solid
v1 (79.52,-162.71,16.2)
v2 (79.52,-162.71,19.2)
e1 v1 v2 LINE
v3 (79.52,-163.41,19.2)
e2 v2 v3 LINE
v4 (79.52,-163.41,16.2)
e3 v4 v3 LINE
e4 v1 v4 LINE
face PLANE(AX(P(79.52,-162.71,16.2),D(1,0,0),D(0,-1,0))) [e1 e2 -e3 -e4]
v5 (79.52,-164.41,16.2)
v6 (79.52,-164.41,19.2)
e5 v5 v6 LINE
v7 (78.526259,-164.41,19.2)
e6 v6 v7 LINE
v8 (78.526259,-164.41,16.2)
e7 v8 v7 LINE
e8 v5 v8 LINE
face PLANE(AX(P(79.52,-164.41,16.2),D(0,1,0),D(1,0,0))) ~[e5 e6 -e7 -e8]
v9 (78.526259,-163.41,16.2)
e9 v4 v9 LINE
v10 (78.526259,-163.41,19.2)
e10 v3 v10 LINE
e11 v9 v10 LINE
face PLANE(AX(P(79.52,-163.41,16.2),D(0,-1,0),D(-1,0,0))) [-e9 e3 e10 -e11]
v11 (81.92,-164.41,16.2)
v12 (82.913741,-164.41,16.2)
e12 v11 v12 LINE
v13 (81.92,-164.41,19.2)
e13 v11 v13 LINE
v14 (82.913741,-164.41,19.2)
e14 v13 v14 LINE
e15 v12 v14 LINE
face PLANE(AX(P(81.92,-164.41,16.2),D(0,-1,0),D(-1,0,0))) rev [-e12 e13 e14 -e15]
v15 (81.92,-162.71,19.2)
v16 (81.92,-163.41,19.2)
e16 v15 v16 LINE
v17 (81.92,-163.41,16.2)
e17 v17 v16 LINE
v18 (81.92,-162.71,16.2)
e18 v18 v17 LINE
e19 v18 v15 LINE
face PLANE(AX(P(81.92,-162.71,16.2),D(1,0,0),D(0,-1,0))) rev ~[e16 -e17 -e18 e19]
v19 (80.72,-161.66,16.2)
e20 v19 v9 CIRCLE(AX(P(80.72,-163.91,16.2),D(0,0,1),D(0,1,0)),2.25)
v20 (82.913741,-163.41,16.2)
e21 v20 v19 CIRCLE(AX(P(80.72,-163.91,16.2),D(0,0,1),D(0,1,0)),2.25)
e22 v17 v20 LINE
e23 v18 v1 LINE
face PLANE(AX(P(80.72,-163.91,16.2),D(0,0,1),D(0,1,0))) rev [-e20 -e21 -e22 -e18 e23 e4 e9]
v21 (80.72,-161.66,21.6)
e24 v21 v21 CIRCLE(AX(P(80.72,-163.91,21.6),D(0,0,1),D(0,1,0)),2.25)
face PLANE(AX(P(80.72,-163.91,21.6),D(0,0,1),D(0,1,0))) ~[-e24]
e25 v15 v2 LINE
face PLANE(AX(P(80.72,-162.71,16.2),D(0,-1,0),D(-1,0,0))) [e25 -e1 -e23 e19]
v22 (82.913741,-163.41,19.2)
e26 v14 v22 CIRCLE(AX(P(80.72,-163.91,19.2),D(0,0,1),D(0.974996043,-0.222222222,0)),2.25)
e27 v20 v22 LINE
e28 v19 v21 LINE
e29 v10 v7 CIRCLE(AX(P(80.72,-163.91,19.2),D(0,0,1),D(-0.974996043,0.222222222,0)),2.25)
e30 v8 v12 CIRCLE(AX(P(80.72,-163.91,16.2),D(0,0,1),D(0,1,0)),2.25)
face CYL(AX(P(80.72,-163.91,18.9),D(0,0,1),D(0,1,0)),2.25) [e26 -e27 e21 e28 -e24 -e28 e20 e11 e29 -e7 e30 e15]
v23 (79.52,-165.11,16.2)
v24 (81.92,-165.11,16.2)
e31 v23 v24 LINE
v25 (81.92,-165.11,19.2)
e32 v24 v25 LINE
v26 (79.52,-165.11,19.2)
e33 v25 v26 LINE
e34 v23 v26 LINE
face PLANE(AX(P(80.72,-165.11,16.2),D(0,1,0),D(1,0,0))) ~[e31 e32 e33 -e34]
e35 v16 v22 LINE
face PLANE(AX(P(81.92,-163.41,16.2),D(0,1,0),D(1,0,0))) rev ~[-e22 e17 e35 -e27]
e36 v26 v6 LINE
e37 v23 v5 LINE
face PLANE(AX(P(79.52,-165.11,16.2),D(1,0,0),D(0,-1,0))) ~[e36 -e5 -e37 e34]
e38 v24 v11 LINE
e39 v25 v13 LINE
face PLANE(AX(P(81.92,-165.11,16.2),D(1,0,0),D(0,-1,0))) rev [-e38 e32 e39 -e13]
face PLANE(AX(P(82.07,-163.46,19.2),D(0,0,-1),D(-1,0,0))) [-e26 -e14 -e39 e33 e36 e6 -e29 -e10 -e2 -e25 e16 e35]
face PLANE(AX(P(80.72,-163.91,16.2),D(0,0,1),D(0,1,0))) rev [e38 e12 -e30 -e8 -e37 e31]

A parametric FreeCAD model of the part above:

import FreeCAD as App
import Part
import Sketcher
from FreeCAD import Vector


def add_polygon(sketch, points):
    """Adds a closed chain of lines whose ends are joined by coincident constraints."""
    first, n = sketch.GeometryCount, len(points)
    for a, b in zip(points, points[1:] + points[:1]):
        sketch.addGeometry(Part.LineSegment(App.Vector(*a, 0), App.Vector(*b, 0)), False)
    for i in range(n):
        sketch.addConstraint(Sketcher.Constraint("Coincident", first + i, 2, first + (i + 1) % n, 1))

doc = App.newDocument("Part")
body = doc.addObject("PartDesign::Body", "Body")

# Sketch on YZ plane
sketch1 = body.newObject("Sketcher::SketchObject", "Sketch")
sketch1.AttachmentSupport = (doc.getObject("YZ_Plane"), [""])
sketch1.MapMode = "FlatFace"
add_polygon(sketch1, [(0, 5.4), (0, 0), (2.2, 0), (2.2, 5.4)])  # lines 0-3
sketch1.addConstraint(Sketcher.Constraint("Vertical", 0))
sketch1.addConstraint(Sketcher.Constraint("Horizontal", 1))
sketch1.addConstraint(Sketcher.Constraint("Vertical", 2))
sketch1.addConstraint(Sketcher.Constraint("Horizontal", 3))
sketch1.addConstraint(Sketcher.Constraint("Coincident", 0, 2, -1, 1))
sketch1.addConstraint(Sketcher.Constraint("DistanceY", 0, 2, 0, 1, 5.4))
sketch1.addConstraint(Sketcher.Constraint("DistanceX", 1, 1, 1, 2, 2.25))
revolution = body.newObject("PartDesign::Revolution", "Revolution")
revolution.Profile = sketch1
revolution.ReferenceAxis = (sketch1, ["V_Axis"])
revolution.Angle = 360

# Sketch on XY plane
sketch2 = body.newObject("Sketcher::SketchObject", "Sketch001")
sketch2.AttachmentSupport = (doc.getObject("XY_Plane"), [""])
sketch2.MapMode = "FlatFace"
add_polygon(sketch2, [(-3, 0), (0, 0), (0, 1.2), (-1.2, 1.2), (-1.2, 0.5), (-3, 0.5)])  # lines 0-5
sketch2.addConstraint(Sketcher.Constraint("Horizontal", 0))
sketch2.addConstraint(Sketcher.Constraint("Vertical", 1))
sketch2.addConstraint(Sketcher.Constraint("Horizontal", 2))
sketch2.addConstraint(Sketcher.Constraint("Vertical", 3))
sketch2.addConstraint(Sketcher.Constraint("Horizontal", 4))
sketch2.addConstraint(Sketcher.Constraint("Vertical", 5))
sketch2.addConstraint(Sketcher.Constraint("Coincident", 0, 2, -1, 1))
sketch2.addConstraint(Sketcher.Constraint("Equal", 2, 1))
sketch2.addConstraint(Sketcher.Constraint("DistanceX", 0, 1, 0, 2, 3.0))
sketch2.addConstraint(Sketcher.Constraint("DistanceX", 2, 2, 2, 1, 1.2))
sketch2.addConstraint(Sketcher.Constraint("DistanceY", 3, 2, 3, 1, 0.7))
pocket1 = body.newObject("PartDesign::Pocket", "Pocket")
pocket1.Profile = sketch2
pocket1.Length = 3
pocket1.Reversed = True

# Sketch on XY plane
sketch3 = body.newObject("Sketcher::SketchObject", "Sketch002")
sketch3.AttachmentSupport = (doc.getObject("XY_Plane"), [""])
sketch3.MapMode = "FlatFace"
add_polygon(sketch3, [(3, 0), (0, 0), (0, 1.2), (1.2, 1.2), (1.2, 0.5), (3, 0.5)])  # lines 0-5
sketch3.addConstraint(Sketcher.Constraint("Horizontal", 0))
sketch3.addConstraint(Sketcher.Constraint("Vertical", 1))
sketch3.addConstraint(Sketcher.Constraint("Horizontal", 2))
sketch3.addConstraint(Sketcher.Constraint("Vertical", 3))
sketch3.addConstraint(Sketcher.Constraint("Horizontal", 4))
sketch3.addConstraint(Sketcher.Constraint("Vertical", 5))
sketch3.addConstraint(Sketcher.Constraint("Coincident", 0, 2, -1, 1))
sketch3.addConstraint(Sketcher.Constraint("Equal", 2, 1))
sketch3.addConstraint(Sketcher.Constraint("DistanceX", 0, 2, 0, 1, 3.0))
sketch3.addConstraint(Sketcher.Constraint("DistanceX", 2, 1, 2, 2, 1.2))
sketch3.addConstraint(Sketcher.Constraint("DistanceY", 3, 2, 3, 1, 0.7))
pocket2 = body.newObject("PartDesign::Pocket", "Pocket001")
pocket2.Profile = sketch3
pocket2.Length = 3
pocket2.Reversed = True
doc.recompute()

mirrored = body.newObject("PartDesign::Mirrored", "Mirrored")
mirrored.Originals = [pocket1, pocket2]
mirrored.MirrorPlane = (doc.getObject("XZ_Plane"), [""])
body.Tip = mirrored
body2 = doc.addObject("PartDesign::Body", "Body001")
doc.recompute()

body.Placement = App.Placement(Vector(80.72, -163.91, 16.2), App.Rotation(Vector(0, 0, 1), 0))
boolean = body2.newObject("PartDesign::Boolean", "Boolean")
boolean.Type = "Fuse"
boolean.addObjects([body])

doc.recompute()
